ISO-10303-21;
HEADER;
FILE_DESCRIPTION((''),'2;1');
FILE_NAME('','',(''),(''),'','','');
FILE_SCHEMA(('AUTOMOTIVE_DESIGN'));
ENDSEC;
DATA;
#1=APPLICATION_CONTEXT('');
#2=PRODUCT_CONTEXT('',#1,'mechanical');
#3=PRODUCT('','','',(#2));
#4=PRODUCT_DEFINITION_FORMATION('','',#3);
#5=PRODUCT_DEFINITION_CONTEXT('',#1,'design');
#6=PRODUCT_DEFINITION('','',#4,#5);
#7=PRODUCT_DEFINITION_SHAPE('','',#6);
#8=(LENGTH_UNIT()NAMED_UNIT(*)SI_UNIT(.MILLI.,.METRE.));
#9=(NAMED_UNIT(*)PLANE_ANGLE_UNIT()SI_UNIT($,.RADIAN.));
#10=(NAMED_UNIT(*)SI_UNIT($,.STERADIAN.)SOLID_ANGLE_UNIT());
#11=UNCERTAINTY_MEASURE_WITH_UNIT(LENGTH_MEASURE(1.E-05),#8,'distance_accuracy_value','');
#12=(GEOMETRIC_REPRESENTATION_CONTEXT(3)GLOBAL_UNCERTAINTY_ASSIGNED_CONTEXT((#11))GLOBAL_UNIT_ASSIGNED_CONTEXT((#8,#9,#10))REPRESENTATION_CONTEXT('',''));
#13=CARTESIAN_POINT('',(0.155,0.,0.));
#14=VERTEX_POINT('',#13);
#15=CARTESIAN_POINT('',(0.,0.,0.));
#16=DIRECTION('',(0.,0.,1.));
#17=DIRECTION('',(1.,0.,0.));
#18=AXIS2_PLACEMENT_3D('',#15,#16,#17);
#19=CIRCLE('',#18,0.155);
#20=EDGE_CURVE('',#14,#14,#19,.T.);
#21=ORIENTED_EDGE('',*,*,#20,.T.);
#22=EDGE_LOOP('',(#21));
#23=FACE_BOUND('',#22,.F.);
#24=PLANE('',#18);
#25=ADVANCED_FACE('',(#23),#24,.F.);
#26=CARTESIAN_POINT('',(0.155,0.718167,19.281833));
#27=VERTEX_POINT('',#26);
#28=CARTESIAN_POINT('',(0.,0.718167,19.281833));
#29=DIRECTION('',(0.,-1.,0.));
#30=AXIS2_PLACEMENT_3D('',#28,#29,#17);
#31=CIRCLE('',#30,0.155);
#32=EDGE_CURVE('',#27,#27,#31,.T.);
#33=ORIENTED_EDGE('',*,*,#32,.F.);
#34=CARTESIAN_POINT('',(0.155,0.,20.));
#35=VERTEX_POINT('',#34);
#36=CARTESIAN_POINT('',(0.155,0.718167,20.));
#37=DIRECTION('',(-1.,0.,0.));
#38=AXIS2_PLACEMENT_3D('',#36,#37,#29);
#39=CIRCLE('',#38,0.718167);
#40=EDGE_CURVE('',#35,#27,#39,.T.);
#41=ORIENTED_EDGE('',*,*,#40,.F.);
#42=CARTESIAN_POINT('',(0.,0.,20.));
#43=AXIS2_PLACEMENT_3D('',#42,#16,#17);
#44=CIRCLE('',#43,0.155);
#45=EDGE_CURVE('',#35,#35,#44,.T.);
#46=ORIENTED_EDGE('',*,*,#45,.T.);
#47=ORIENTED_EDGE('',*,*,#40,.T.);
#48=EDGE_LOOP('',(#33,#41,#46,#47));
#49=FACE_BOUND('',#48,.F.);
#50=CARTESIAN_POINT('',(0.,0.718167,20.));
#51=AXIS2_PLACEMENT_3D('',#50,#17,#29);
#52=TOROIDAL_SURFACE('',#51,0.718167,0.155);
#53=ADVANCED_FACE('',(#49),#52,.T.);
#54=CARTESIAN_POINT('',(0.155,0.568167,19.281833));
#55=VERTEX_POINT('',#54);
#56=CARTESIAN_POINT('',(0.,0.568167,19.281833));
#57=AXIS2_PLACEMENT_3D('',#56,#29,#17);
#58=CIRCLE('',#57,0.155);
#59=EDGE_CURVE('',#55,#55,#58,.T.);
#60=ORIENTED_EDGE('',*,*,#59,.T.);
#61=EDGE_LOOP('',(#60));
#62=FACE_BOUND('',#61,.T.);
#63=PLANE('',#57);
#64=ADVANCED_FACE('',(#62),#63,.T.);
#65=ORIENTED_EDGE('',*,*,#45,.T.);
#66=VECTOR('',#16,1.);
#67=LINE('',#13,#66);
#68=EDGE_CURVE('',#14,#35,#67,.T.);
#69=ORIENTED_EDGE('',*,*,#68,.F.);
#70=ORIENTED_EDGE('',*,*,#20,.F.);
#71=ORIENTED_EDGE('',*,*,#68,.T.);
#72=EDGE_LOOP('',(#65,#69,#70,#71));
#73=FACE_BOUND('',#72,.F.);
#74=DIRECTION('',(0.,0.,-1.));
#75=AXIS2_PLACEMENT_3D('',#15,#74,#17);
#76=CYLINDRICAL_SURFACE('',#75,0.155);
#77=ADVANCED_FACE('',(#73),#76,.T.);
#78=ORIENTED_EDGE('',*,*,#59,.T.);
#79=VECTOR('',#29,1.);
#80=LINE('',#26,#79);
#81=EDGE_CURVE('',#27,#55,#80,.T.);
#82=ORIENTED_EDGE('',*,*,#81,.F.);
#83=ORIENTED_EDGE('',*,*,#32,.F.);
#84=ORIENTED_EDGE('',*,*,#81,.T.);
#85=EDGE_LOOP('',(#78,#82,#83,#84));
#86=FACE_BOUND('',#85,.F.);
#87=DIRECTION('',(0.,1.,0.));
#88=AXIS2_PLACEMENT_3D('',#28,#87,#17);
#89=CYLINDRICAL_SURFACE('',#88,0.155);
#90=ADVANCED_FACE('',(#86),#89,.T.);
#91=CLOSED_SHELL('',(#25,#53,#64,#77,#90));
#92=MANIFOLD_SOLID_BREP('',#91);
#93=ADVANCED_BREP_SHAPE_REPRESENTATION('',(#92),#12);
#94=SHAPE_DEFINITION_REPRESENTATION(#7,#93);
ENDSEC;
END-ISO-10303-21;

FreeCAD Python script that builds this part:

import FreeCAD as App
import Part
import Sketcher
from FreeCAD import Vector

doc = App.newDocument("Part")
body = doc.addObject("PartDesign::Body", "Body")

# Sketch on XY plane
sketch1 = doc.addObject("Sketcher::SketchObject", "Sketch")
body.addObject(sketch1)
sketch1.AttachmentSupport = (doc.XY_Plane, [""])
sketch1.MapMode = "FlatFace"
sketch1.addGeometry(Part.Circle(Vector(0, 0, 0), Vector(0, 0, 1), 0.15), False)
sketch1.addConstraint([
    Sketcher.Constraint("Coincident", 0, 3, -1, 1),
    Sketcher.Constraint("Diameter", 0, 0.31),
])
pad1 = doc.addObject("PartDesign::Pad", "Pad")
body.addObject(pad1)
pad1.Profile = sketch1
pad1.Length = 20

# Sketch on XY plane
sketch2 = doc.addObject("Sketcher::SketchObject", "Sketch001")
body.addObject(sketch2)
sketch2.AttachmentSupport = (doc.XY_Plane, [""])
sketch2.MapMode = "FlatFace"
sketch2.AttachmentOffset = App.Placement(Vector(0, 0, 20), App.Rotation())
sketch2.addGeometry(Part.Circle(Vector(0, 0, 0), Vector(0, 0, 1), 0.15), False)
sketch2.addGeometry(Part.LineSegment(Vector(0, 0.72, 0), Vector(-10, 0.72, 0)), True)  # axis
sketch2.addConstraint([
    Sketcher.Constraint("Horizontal", 1),
    Sketcher.Constraint("Coincident", 0, 3, -1, 1),
    Sketcher.Constraint("PointOnObject", 1, 1, -2),
    Sketcher.Constraint("Diameter", 0, 0.31),
    Sketcher.Constraint("DistanceX", 1, 2, 1, 1, 10.0),
    Sketcher.Constraint("DistanceY", -1, 1, 1, 1, 0.718167),
])
revolution = doc.addObject("PartDesign::Revolution", "Revolution")
body.addObject(revolution)
revolution.Profile = sketch2
revolution.ReferenceAxis = (sketch2, ["Axis0"])
revolution.Angle = 270

# Sketch on XZ plane
sketch3 = doc.addObject("Sketcher::SketchObject", "Sketch002")
body.addObject(sketch3)
sketch3.AttachmentSupport = (doc.XZ_Plane, [""])
sketch3.MapMode = "FlatFace"
sketch3.AttachmentOffset = App.Placement(Vector(0, 0, -0.718167), App.Rotation())
sketch3.addGeometry(Part.Circle(Vector(0, 19.28, 0), Vector(0, 0, 1), 0.15), False)
sketch3.addConstraint([
    Sketcher.Constraint("PointOnObject", 0, 3, -2),
    Sketcher.Constraint("Diameter", 0, 0.31),
    Sketcher.Constraint("DistanceY", -1, 1, 0, 3, 19.281833),
])
pad2 = doc.addObject("PartDesign::Pad", "Pad001")
body.addObject(pad2)
pad2.Profile = sketch3
pad2.Length = 0.15

doc.recompute()
